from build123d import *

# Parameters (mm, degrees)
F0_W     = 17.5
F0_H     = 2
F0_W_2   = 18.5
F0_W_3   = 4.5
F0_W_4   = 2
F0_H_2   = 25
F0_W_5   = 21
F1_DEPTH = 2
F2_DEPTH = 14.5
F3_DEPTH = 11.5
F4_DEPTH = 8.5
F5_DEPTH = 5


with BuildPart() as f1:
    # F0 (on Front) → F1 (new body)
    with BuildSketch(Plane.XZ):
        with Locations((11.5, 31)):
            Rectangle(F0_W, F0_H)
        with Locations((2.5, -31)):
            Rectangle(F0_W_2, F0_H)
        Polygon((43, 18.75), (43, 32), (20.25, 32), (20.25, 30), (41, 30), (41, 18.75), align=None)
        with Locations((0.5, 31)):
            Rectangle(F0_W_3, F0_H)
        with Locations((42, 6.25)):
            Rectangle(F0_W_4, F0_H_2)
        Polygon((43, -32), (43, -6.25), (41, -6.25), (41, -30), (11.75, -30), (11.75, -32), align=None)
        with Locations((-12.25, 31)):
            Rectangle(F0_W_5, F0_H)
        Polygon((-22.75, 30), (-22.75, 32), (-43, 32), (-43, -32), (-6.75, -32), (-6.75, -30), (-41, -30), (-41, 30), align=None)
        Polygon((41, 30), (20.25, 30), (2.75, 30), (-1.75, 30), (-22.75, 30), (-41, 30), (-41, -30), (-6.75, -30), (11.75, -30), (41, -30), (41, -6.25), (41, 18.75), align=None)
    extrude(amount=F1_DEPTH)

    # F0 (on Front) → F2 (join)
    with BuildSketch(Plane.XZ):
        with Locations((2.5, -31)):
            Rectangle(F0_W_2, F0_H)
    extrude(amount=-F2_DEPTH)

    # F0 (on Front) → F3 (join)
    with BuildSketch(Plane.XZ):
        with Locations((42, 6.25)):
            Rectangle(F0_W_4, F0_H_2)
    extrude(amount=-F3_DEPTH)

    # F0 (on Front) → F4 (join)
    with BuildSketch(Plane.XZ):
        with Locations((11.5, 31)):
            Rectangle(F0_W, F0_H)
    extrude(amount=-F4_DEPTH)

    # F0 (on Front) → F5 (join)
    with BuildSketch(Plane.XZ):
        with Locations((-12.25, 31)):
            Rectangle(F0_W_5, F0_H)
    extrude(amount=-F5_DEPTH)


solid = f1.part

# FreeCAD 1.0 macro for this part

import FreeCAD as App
import Part
import Sketcher

V = App.Vector


def add_polygon(sketch, points):
    """Adds a closed chain of lines whose ends are joined by coincident constraints."""
    first, n = sketch.GeometryCount, len(points)
    for a, b in zip(points, points[1:] + points[:1]):
        sketch.addGeometry(Part.LineSegment(App.Vector(*a, 0), App.Vector(*b, 0)), False)
    for i in range(n):
        sketch.addConstraint(Sketcher.Constraint("Coincident", first + i, 2, first + (i + 1) % n, 1))

doc = App.newDocument("Part")
body = doc.addObject("PartDesign::Body", "Body")

# Sketch on XZ plane
sketch1 = body.newObject("Sketcher::SketchObject", "Sketch")
sketch1.AttachmentSupport = (doc.getObject("XZ_Plane"), [""])
sketch1.MapMode = "FlatFace"
add_polygon(sketch1, [(43, -32), (43, 32), (-43, 32), (-43, -32)])  # lines 0-3
sketch1.addConstraint(Sketcher.Constraint("Vertical", 0))
sketch1.addConstraint(Sketcher.Constraint("Horizontal", 1))
sketch1.addConstraint(Sketcher.Constraint("Vertical", 2))
sketch1.addConstraint(Sketcher.Constraint("Horizontal", 3))
sketch1.addConstraint(Sketcher.Constraint("Symmetric", 0, 2, 2, 2, -1, 1))
sketch1.addConstraint(Sketcher.Constraint("DistanceX", 1, 2, 1, 1, 86.0))
sketch1.addConstraint(Sketcher.Constraint("DistanceY", 0, 1, 0, 2, 64.0))
pad1 = body.newObject("PartDesign::Pad", "Pad")
pad1.Profile = sketch1
pad1.Length = 2

# Sketch on XZ plane
sketch2 = body.newObject("Sketcher::SketchObject", "Sketch001")
sketch2.AttachmentSupport = (doc.getObject("XZ_Plane"), [""])
sketch2.MapMode = "FlatFace"
add_polygon(sketch2, [(-6.75, -30), (-6.75, -32), (11.75, -32), (11.75, -30)])  # lines 0-3
sketch2.addConstraint(Sketcher.Constraint("Vertical", 0))
sketch2.addConstraint(Sketcher.Constraint("Horizontal", 1))
sketch2.addConstraint(Sketcher.Constraint("Vertical", 2))
sketch2.addConstraint(Sketcher.Constraint("Horizontal", 3))
sketch2.addConstraint(Sketcher.Constraint("DistanceY", 0, 2, 0, 1, 2.0))
sketch2.addConstraint(Sketcher.Constraint("DistanceX", 1, 1, 1, 2, 18.5))
sketch2.addConstraint(Sketcher.Constraint("DistanceY", 0, 2, -1, 1, 32.0))
sketch2.addConstraint(Sketcher.Constraint("DistanceX", 0, 2, -1, 1, 6.75))
pad2 = body.newObject("PartDesign::Pad", "Pad001")
pad2.Profile = sketch2
pad2.Length = 14.5
pad2.Reversed = True

# Sketch on XZ plane
sketch3 = body.newObject("Sketcher::SketchObject", "Sketch002")
sketch3.AttachmentSupport = (doc.getObject("XZ_Plane"), [""])
sketch3.MapMode = "FlatFace"
add_polygon(sketch3, [(41, 18.75), (41, -6.25), (43, -6.25), (43, 18.75)])  # lines 0-3
sketch3.addConstraint(Sketcher.Constraint("Vertical", 0))
sketch3.addConstraint(Sketcher.Constraint("Horizontal", 1))
sketch3.addConstraint(Sketcher.Constraint("Vertical", 2))
sketch3.addConstraint(Sketcher.Constraint("Horizontal", 3))
sketch3.addConstraint(Sketcher.Constraint("DistanceX", 1, 1, 1, 2, 2.0))
sketch3.addConstraint(Sketcher.Constraint("DistanceY", 0, 2, 0, 1, 25.0))
sketch3.addConstraint(Sketcher.Constraint("DistanceX", -1, 1, 0, 2, 41.0))
sketch3.addConstraint(Sketcher.Constraint("DistanceY", 0, 2, -1, 1, 6.25))
pad3 = body.newObject("PartDesign::Pad", "Pad002")
pad3.Profile = sketch3
pad3.Length = 11.5
pad3.Reversed = True

# Sketch on XZ plane
sketch4 = body.newObject("Sketcher::SketchObject", "Sketch003")
sketch4.AttachmentSupport = (doc.getObject("XZ_Plane"), [""])
sketch4.MapMode = "FlatFace"
add_polygon(sketch4, [(2.75, 32), (2.75, 30), (20.25, 30), (20.25, 32)])  # lines 0-3
sketch4.addConstraint(Sketcher.Constraint("Vertical", 0))
sketch4.addConstraint(Sketcher.Constraint("Horizontal", 1))
sketch4.addConstraint(Sketcher.Constraint("Vertical", 2))
sketch4.addConstraint(Sketcher.Constraint("Horizontal", 3))
sketch4.addConstraint(Sketcher.Constraint("DistanceY", 0, 2, 0, 1, 2.0))
sketch4.addConstraint(Sketcher.Constraint("DistanceX", 1, 1, 1, 2, 17.5))
sketch4.addConstraint(Sketcher.Constraint("DistanceY", -1, 1, 0, 2, 30.0))
sketch4.addConstraint(Sketcher.Constraint("DistanceX", -1, 1, 0, 2, 2.75))
pad4 = body.newObject("PartDesign::Pad", "Pad003")
pad4.Profile = sketch4
pad4.Length = 8.5
pad4.Reversed = True

# Sketch on XZ plane
sketch5 = body.newObject("Sketcher::SketchObject", "Sketch004")
sketch5.AttachmentSupport = (doc.getObject("XZ_Plane"), [""])
sketch5.MapMode = "FlatFace"
add_polygon(sketch5, [(-22.75, 32), (-22.75, 30), (-1.75, 30), (-1.75, 32)])  # lines 0-3
sketch5.addConstraint(Sketcher.Constraint("Vertical", 0))
sketch5.addConstraint(Sketcher.Constraint("Horizontal", 1))
sketch5.addConstraint(Sketcher.Constraint("Vertical", 2))
sketch5.addConstraint(Sketcher.Constraint("Horizontal", 3))
sketch5.addConstraint(Sketcher.Constraint("DistanceX", 1, 1, 1, 2, 21.0))
sketch5.addConstraint(Sketcher.Constraint("DistanceY", 0, 2, 0, 1, 2.0))
sketch5.addConstraint(Sketcher.Constraint("DistanceY", -1, 1, 0, 2, 30.0))
sketch5.addConstraint(Sketcher.Constraint("DistanceX", 0, 2, -1, 1, 22.75))
pad5 = body.newObject("PartDesign::Pad", "Pad004")
pad5.Profile = sketch5
pad5.Length = 5
pad5.Reversed = True

doc.recompute()
